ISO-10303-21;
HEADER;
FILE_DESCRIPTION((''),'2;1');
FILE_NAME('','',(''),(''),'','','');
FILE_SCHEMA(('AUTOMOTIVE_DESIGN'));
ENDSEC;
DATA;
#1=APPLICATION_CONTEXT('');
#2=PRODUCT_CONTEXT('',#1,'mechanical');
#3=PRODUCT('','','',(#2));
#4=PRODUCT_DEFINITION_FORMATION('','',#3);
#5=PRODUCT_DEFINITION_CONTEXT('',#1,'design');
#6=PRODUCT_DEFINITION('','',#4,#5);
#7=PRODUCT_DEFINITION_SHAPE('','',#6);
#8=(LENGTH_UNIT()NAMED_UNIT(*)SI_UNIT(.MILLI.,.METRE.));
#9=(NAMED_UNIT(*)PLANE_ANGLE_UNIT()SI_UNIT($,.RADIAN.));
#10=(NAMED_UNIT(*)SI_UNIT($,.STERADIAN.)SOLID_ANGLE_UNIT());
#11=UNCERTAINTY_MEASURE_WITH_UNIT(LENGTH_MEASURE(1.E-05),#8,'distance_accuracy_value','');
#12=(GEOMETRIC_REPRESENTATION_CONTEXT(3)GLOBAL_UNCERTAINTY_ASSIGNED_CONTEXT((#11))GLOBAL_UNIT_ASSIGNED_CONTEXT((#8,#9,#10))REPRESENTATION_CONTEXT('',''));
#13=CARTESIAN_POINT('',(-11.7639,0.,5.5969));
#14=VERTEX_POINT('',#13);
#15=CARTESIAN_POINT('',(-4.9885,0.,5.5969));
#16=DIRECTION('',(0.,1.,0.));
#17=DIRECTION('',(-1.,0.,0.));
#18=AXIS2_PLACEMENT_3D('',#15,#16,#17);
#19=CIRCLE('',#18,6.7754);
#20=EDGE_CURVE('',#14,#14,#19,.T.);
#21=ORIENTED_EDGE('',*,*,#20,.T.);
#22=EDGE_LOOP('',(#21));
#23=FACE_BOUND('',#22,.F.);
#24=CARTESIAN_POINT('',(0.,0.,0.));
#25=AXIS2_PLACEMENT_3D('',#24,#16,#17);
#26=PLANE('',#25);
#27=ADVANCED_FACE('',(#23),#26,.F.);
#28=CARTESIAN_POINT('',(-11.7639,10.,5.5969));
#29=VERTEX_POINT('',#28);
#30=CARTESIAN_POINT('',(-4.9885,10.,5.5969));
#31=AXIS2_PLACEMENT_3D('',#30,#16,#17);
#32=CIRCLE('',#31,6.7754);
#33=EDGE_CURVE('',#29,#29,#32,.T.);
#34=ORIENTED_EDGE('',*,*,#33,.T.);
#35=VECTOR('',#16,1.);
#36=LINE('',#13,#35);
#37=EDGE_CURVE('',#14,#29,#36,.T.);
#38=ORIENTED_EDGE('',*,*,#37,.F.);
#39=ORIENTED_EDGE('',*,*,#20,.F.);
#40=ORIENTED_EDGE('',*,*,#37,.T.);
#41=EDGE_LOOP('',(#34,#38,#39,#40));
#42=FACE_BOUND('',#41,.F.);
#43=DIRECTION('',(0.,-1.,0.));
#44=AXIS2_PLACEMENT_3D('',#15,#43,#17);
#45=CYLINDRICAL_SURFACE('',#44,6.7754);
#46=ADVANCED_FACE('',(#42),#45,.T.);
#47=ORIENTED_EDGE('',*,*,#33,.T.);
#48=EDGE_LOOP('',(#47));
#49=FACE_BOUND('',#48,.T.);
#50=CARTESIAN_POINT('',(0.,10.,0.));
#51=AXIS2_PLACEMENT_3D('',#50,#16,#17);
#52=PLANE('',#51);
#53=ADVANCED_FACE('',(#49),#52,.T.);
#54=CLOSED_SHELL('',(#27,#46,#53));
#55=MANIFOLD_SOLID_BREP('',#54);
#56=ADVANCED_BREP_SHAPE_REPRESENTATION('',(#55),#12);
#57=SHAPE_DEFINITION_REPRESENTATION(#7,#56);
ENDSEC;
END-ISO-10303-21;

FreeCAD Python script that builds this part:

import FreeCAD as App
import Part
import Sketcher
Q = App.Units.Quantity

doc = App.newDocument("Part")
body = doc.addObject("PartDesign::Body", "Body")

# Sketch on XZ plane
sketch1 = body.newObject("Sketcher::SketchObject", "Sketch")
sketch1.AttachmentSupport = (doc.getObject("XZ_Plane"), [""])
sketch1.MapMode = "FlatFace"
sketch1.addGeometry(Part.Circle(App.Vector(-4.9885, 5.5969, 0), App.Vector(0, 0, 1), 6.7754), False)
sketch1.addConstraint([
    Sketcher.Constraint("Diameter", 0, Q("13.5508 mm")),
    Sketcher.Constraint("DistanceY", -1, 1, 0, 3, Q("5.597 mm")),
    Sketcher.Constraint("DistanceX", 0, 3, -1, 1, Q("4.9885 mm")),
])
pad1 = body.newObject("PartDesign::Pad", "Pad")
pad1.Profile = sketch1
pad1.Length = 10
pad1.Reversed = True

doc.recompute()
